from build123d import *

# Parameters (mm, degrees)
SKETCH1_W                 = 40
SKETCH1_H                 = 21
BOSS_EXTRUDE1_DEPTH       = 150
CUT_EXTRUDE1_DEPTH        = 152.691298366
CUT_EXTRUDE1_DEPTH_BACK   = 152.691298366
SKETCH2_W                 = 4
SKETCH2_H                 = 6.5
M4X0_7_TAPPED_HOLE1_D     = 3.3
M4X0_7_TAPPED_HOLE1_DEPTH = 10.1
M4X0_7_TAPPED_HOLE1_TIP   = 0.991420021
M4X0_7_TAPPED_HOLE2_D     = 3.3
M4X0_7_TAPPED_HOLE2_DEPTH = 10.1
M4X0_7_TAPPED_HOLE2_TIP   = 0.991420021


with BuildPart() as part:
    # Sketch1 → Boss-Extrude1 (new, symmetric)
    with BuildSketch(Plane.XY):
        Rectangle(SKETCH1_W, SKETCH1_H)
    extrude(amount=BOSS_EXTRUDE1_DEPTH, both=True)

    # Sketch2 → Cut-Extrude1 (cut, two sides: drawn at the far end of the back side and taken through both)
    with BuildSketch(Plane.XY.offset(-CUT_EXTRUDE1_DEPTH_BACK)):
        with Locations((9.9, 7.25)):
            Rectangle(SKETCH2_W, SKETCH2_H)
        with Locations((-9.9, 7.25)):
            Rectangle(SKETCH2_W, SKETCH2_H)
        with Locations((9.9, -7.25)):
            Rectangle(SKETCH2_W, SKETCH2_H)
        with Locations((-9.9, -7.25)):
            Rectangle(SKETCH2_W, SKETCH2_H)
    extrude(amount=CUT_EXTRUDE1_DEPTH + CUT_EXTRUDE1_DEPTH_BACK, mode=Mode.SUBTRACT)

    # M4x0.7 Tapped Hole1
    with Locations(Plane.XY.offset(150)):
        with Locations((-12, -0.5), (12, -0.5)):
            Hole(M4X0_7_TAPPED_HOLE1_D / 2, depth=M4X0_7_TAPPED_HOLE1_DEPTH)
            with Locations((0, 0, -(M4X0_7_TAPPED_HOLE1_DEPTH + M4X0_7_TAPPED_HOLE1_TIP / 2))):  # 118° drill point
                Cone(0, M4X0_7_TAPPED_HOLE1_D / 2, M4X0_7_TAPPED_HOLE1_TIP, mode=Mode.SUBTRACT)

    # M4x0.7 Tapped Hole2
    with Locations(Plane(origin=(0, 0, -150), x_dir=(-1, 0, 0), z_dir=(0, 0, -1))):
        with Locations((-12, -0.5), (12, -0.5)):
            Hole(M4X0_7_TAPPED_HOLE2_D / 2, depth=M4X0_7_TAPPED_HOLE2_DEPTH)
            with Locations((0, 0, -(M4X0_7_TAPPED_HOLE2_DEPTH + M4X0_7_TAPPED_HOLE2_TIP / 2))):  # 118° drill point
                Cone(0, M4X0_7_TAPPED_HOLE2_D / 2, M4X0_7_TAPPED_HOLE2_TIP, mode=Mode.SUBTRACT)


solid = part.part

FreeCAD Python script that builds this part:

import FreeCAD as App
import Part
import Sketcher
Q = App.Units.Quantity

doc = App.newDocument("Part")
body = doc.addObject("PartDesign::Body", "Body")

sketch1 = body.newObject("Sketcher::SketchObject", "Sketch")
sketch1.AttachmentSupport = (doc.getObject("XY_Plane"), [""])
sketch1.MapMode = "FlatFace"
sketch1.addGeometry(Part.LineSegment(App.Vector(-20, 10, 0), App.Vector(-20, -10, 0)), False)
sketch1.addGeometry(Part.LineSegment(App.Vector(-20, -10, 0), App.Vector(20, -10, 0)), False)
sketch1.addGeometry(Part.LineSegment(App.Vector(20, -10, 0), App.Vector(20, 10, 0)), False)
sketch1.addGeometry(Part.LineSegment(App.Vector(20, 10, 0), App.Vector(-20, 10, 0)), False)
sketch1.addConstraint(Sketcher.Constraint("Coincident", 0, 2, 1, 1))
sketch1.addConstraint(Sketcher.Constraint("Coincident", 1, 2, 2, 1))
sketch1.addConstraint(Sketcher.Constraint("Coincident", 2, 2, 3, 1))
sketch1.addConstraint(Sketcher.Constraint("Coincident", 3, 2, 0, 1))
sketch1.addConstraint(Sketcher.Constraint("Vertical", 0))
sketch1.addConstraint(Sketcher.Constraint("Horizontal", 1))
sketch1.addConstraint(Sketcher.Constraint("Vertical", 2))
sketch1.addConstraint(Sketcher.Constraint("Horizontal", 3))
sketch1.addConstraint(Sketcher.Constraint("Symmetric", 0, 2, 2, 2, -1, 1))
sketch1.addConstraint(Sketcher.Constraint("DistanceX", 1, 1, 1, 2, Q("40 mm")))
sketch1.addConstraint(Sketcher.Constraint("DistanceY", 0, 2, 0, 1, Q("21 mm")))
pad1 = body.newObject("PartDesign::Pad", "Pad")
pad1.Profile = sketch1
pad1.Length = 300
pad1.Midplane = True

sketch2 = body.newObject("Sketcher::SketchObject", "Sketch001")
sketch2.AttachmentSupport = (doc.getObject("XY_Plane"), [""])
sketch2.MapMode = "FlatFace"
sketch2.addGeometry(Part.LineSegment(App.Vector(7.9, 10.5, 0), App.Vector(7.9, 4, 0)), False)
sketch2.addGeometry(Part.LineSegment(App.Vector(7.9, 4, 0), App.Vector(11.9, 4, 0)), False)
sketch2.addGeometry(Part.LineSegment(App.Vector(11.9, 4, 0), App.Vector(11.9, 10.5, 0)), False)
sketch2.addGeometry(Part.LineSegment(App.Vector(11.9, 10.5, 0), App.Vector(7.9, 10.5, 0)), False)
sketch2.addGeometry(Part.LineSegment(App.Vector(-11.9, 10.5, 0), App.Vector(-11.9, 4, 0)), False)
sketch2.addGeometry(Part.LineSegment(App.Vector(-11.9, 4, 0), App.Vector(-7.9, 4, 0)), False)
sketch2.addGeometry(Part.LineSegment(App.Vector(-7.9, 4, 0), App.Vector(-7.9, 10.5, 0)), False)
sketch2.addGeometry(Part.LineSegment(App.Vector(-7.9, 10.5, 0), App.Vector(-11.9, 10.5, 0)), False)
sketch2.addGeometry(Part.LineSegment(App.Vector(7.9, -4, 0), App.Vector(7.9, -10.5, 0)), False)
sketch2.addGeometry(Part.LineSegment(App.Vector(7.9, -10.5, 0), App.Vector(11.9, -10.5, 0)), False)
sketch2.addGeometry(Part.LineSegment(App.Vector(11.9, -10.5, 0), App.Vector(11.9, -4, 0)), False)
sketch2.addGeometry(Part.LineSegment(App.Vector(11.9, -4, 0), App.Vector(7.9, -4, 0)), False)
sketch2.addGeometry(Part.LineSegment(App.Vector(-11.9, -4, 0), App.Vector(-11.9, -10.5, 0)), False)
sketch2.addGeometry(Part.LineSegment(App.Vector(-11.9, -10.5, 0), App.Vector(-7.9, -10.5, 0)), False)
sketch2.addGeometry(Part.LineSegment(App.Vector(-7.9, -10.5, 0), App.Vector(-7.9, -4, 0)), False)
sketch2.addGeometry(Part.LineSegment(App.Vector(-7.9, -4, 0), App.Vector(-11.9, -4, 0)), False)
sketch2.addConstraint(Sketcher.Constraint("Coincident", 0, 2, 1, 1))
sketch2.addConstraint(Sketcher.Constraint("Coincident", 1, 2, 2, 1))
sketch2.addConstraint(Sketcher.Constraint("Coincident", 2, 2, 3, 1))
sketch2.addConstraint(Sketcher.Constraint("Coincident", 3, 2, 0, 1))
sketch2.addConstraint(Sketcher.Constraint("Coincident", 4, 2, 5, 1))
sketch2.addConstraint(Sketcher.Constraint("Coincident", 5, 2, 6, 1))
sketch2.addConstraint(Sketcher.Constraint("Coincident", 6, 2, 7, 1))
sketch2.addConstraint(Sketcher.Constraint("Coincident", 7, 2, 4, 1))
sketch2.addConstraint(Sketcher.Constraint("Coincident", 8, 2, 9, 1))
sketch2.addConstraint(Sketcher.Constraint("Coincident", 9, 2, 10, 1))
sketch2.addConstraint(Sketcher.Constraint("Coincident", 10, 2, 11, 1))
sketch2.addConstraint(Sketcher.Constraint("Coincident", 11, 2, 8, 1))
sketch2.addConstraint(Sketcher.Constraint("Coincident", 12, 2, 13, 1))
sketch2.addConstraint(Sketcher.Constraint("Coincident", 13, 2, 14, 1))
sketch2.addConstraint(Sketcher.Constraint("Coincident", 14, 2, 15, 1))
sketch2.addConstraint(Sketcher.Constraint("Coincident", 15, 2, 12, 1))
sketch2.addConstraint(Sketcher.Constraint("Vertical", 0))
sketch2.addConstraint(Sketcher.Constraint("Horizontal", 1))
sketch2.addConstraint(Sketcher.Constraint("Vertical", 2))
sketch2.addConstraint(Sketcher.Constraint("Horizontal", 3))
sketch2.addConstraint(Sketcher.Constraint("Vertical", 4))
sketch2.addConstraint(Sketcher.Constraint("Horizontal", 5))
sketch2.addConstraint(Sketcher.Constraint("Vertical", 6))
sketch2.addConstraint(Sketcher.Constraint("Horizontal", 7))
sketch2.addConstraint(Sketcher.Constraint("Vertical", 8))
sketch2.addConstraint(Sketcher.Constraint("Horizontal", 9))
sketch2.addConstraint(Sketcher.Constraint("Vertical", 10))
sketch2.addConstraint(Sketcher.Constraint("Horizontal", 11))
sketch2.addConstraint(Sketcher.Constraint("Vertical", 12))
sketch2.addConstraint(Sketcher.Constraint("Horizontal", 13))
sketch2.addConstraint(Sketcher.Constraint("Vertical", 14))
sketch2.addConstraint(Sketcher.Constraint("Horizontal", 15))
sketch2.addConstraint(Sketcher.Constraint("Symmetric", 6, 2, 8, 2, -1, 1))
sketch2.addConstraint(Sketcher.Constraint("Symmetric", 4, 2, 10, 2, -1, 1))
sketch2.addConstraint(Sketcher.Constraint("Symmetric", 2, 2, 12, 2, -1, 1))
sketch2.addConstraint(Sketcher.Constraint("Symmetric", 0, 2, 14, 2, -1, 1))
sketch2.addConstraint(Sketcher.Constraint("Symmetric", 1, 2, 4, 2, -2))
sketch2.addConstraint(Sketcher.Constraint("Symmetric", 3, 2, 6, 2, -2))
sketch2.addConstraint(Sketcher.Constraint("DistanceX", 1, 1, 1, 2, Q("4 mm")))
sketch2.addConstraint(Sketcher.Constraint("DistanceY", 0, 2, 0, 1, Q("6.5 mm")))
sketch2.addConstraint(Sketcher.Constraint("DistanceY", -1, 1, 0, 2, Q("4 mm")))
sketch2.addConstraint(Sketcher.Constraint("DistanceX", -1, 1, 0, 2, Q("7.9 mm")))
pocket1 = body.newObject("PartDesign::Pocket", "Pocket")
pocket1.Profile = sketch2
pocket1.Type = "ThroughAll"
pocket1.Midplane = True

sketch3 = body.newObject("Sketcher::SketchObject", "Sketch002")
sketch3.AttachmentSupport = (doc.getObject("XY_Plane"), [""])
sketch3.MapMode = "FlatFace"
sketch3.AttachmentOffset = App.Placement(App.Vector(0, 0, 150), App.Rotation())
sketch3.addGeometry(Part.Circle(App.Vector(-12, -0.5, 0), App.Vector(0, 0, 1), 1.6), False)
sketch3.addGeometry(Part.Circle(App.Vector(12, -0.5, 0), App.Vector(0, 0, 1), 1.6), False)
sketch3.addConstraint(Sketcher.Constraint("Equal", 0, 1))
sketch3.addConstraint(Sketcher.Constraint("Symmetric", 0, 3, 1, 3, -2))
sketch3.addConstraint(Sketcher.Constraint("Diameter", 0, Q("3.3 mm")))
sketch3.addConstraint(Sketcher.Constraint("DistanceX", 0, 3, -1, 1, Q("12 mm")))
sketch3.addConstraint(Sketcher.Constraint("DistanceY", 0, 3, -1, 1, Q("0.5 mm")))
doc.recompute()
hole = body.newObject("PartDesign::Hole", "Hole")
hole.Profile = sketch3
hole.ThreadType = "None"
hole.Diameter = 3.3
hole.DepthType = "Dimension"
hole.Depth = 10.1
hole.DrillPoint = "Angled"
hole.DrillPointAngle = 118

sketch4 = body.newObject("Sketcher::SketchObject", "Sketch003")
sketch4.AttachmentSupport = (doc.getObject("XY_Plane"), [""])
sketch4.MapMode = "FlatFace"
sketch4.AttachmentOffset = App.Placement(App.Vector(0, 0, -150), App.Rotation())
sketch4.addGeometry(Part.Circle(App.Vector(12, -0.5, 0), App.Vector(0, 0, 1), 1.6), False)
sketch4.addGeometry(Part.Circle(App.Vector(-12, -0.5, 0), App.Vector(0, 0, 1), 1.6), False)
sketch4.addConstraint(Sketcher.Constraint("Equal", 0, 1))
sketch4.addConstraint(Sketcher.Constraint("Symmetric", 0, 3, 1, 3, -2))
sketch4.addConstraint(Sketcher.Constraint("Diameter", 0, Q("3.3 mm")))
sketch4.addConstraint(Sketcher.Constraint("DistanceX", -1, 1, 0, 3, Q("12 mm")))
sketch4.addConstraint(Sketcher.Constraint("DistanceY", 0, 3, -1, 1, Q("0.5 mm")))
doc.recompute()
hole2 = body.newObject("PartDesign::Hole", "Hole001")
hole2.Profile = sketch4
hole2.ThreadType = "None"
hole2.Diameter = 3.3
hole2.DepthType = "Dimension"
hole2.Depth = 10.1
hole2.DrillPoint = "Angled"
hole2.DrillPointAngle = 118
hole2.Reversed = True

doc.recompute()
